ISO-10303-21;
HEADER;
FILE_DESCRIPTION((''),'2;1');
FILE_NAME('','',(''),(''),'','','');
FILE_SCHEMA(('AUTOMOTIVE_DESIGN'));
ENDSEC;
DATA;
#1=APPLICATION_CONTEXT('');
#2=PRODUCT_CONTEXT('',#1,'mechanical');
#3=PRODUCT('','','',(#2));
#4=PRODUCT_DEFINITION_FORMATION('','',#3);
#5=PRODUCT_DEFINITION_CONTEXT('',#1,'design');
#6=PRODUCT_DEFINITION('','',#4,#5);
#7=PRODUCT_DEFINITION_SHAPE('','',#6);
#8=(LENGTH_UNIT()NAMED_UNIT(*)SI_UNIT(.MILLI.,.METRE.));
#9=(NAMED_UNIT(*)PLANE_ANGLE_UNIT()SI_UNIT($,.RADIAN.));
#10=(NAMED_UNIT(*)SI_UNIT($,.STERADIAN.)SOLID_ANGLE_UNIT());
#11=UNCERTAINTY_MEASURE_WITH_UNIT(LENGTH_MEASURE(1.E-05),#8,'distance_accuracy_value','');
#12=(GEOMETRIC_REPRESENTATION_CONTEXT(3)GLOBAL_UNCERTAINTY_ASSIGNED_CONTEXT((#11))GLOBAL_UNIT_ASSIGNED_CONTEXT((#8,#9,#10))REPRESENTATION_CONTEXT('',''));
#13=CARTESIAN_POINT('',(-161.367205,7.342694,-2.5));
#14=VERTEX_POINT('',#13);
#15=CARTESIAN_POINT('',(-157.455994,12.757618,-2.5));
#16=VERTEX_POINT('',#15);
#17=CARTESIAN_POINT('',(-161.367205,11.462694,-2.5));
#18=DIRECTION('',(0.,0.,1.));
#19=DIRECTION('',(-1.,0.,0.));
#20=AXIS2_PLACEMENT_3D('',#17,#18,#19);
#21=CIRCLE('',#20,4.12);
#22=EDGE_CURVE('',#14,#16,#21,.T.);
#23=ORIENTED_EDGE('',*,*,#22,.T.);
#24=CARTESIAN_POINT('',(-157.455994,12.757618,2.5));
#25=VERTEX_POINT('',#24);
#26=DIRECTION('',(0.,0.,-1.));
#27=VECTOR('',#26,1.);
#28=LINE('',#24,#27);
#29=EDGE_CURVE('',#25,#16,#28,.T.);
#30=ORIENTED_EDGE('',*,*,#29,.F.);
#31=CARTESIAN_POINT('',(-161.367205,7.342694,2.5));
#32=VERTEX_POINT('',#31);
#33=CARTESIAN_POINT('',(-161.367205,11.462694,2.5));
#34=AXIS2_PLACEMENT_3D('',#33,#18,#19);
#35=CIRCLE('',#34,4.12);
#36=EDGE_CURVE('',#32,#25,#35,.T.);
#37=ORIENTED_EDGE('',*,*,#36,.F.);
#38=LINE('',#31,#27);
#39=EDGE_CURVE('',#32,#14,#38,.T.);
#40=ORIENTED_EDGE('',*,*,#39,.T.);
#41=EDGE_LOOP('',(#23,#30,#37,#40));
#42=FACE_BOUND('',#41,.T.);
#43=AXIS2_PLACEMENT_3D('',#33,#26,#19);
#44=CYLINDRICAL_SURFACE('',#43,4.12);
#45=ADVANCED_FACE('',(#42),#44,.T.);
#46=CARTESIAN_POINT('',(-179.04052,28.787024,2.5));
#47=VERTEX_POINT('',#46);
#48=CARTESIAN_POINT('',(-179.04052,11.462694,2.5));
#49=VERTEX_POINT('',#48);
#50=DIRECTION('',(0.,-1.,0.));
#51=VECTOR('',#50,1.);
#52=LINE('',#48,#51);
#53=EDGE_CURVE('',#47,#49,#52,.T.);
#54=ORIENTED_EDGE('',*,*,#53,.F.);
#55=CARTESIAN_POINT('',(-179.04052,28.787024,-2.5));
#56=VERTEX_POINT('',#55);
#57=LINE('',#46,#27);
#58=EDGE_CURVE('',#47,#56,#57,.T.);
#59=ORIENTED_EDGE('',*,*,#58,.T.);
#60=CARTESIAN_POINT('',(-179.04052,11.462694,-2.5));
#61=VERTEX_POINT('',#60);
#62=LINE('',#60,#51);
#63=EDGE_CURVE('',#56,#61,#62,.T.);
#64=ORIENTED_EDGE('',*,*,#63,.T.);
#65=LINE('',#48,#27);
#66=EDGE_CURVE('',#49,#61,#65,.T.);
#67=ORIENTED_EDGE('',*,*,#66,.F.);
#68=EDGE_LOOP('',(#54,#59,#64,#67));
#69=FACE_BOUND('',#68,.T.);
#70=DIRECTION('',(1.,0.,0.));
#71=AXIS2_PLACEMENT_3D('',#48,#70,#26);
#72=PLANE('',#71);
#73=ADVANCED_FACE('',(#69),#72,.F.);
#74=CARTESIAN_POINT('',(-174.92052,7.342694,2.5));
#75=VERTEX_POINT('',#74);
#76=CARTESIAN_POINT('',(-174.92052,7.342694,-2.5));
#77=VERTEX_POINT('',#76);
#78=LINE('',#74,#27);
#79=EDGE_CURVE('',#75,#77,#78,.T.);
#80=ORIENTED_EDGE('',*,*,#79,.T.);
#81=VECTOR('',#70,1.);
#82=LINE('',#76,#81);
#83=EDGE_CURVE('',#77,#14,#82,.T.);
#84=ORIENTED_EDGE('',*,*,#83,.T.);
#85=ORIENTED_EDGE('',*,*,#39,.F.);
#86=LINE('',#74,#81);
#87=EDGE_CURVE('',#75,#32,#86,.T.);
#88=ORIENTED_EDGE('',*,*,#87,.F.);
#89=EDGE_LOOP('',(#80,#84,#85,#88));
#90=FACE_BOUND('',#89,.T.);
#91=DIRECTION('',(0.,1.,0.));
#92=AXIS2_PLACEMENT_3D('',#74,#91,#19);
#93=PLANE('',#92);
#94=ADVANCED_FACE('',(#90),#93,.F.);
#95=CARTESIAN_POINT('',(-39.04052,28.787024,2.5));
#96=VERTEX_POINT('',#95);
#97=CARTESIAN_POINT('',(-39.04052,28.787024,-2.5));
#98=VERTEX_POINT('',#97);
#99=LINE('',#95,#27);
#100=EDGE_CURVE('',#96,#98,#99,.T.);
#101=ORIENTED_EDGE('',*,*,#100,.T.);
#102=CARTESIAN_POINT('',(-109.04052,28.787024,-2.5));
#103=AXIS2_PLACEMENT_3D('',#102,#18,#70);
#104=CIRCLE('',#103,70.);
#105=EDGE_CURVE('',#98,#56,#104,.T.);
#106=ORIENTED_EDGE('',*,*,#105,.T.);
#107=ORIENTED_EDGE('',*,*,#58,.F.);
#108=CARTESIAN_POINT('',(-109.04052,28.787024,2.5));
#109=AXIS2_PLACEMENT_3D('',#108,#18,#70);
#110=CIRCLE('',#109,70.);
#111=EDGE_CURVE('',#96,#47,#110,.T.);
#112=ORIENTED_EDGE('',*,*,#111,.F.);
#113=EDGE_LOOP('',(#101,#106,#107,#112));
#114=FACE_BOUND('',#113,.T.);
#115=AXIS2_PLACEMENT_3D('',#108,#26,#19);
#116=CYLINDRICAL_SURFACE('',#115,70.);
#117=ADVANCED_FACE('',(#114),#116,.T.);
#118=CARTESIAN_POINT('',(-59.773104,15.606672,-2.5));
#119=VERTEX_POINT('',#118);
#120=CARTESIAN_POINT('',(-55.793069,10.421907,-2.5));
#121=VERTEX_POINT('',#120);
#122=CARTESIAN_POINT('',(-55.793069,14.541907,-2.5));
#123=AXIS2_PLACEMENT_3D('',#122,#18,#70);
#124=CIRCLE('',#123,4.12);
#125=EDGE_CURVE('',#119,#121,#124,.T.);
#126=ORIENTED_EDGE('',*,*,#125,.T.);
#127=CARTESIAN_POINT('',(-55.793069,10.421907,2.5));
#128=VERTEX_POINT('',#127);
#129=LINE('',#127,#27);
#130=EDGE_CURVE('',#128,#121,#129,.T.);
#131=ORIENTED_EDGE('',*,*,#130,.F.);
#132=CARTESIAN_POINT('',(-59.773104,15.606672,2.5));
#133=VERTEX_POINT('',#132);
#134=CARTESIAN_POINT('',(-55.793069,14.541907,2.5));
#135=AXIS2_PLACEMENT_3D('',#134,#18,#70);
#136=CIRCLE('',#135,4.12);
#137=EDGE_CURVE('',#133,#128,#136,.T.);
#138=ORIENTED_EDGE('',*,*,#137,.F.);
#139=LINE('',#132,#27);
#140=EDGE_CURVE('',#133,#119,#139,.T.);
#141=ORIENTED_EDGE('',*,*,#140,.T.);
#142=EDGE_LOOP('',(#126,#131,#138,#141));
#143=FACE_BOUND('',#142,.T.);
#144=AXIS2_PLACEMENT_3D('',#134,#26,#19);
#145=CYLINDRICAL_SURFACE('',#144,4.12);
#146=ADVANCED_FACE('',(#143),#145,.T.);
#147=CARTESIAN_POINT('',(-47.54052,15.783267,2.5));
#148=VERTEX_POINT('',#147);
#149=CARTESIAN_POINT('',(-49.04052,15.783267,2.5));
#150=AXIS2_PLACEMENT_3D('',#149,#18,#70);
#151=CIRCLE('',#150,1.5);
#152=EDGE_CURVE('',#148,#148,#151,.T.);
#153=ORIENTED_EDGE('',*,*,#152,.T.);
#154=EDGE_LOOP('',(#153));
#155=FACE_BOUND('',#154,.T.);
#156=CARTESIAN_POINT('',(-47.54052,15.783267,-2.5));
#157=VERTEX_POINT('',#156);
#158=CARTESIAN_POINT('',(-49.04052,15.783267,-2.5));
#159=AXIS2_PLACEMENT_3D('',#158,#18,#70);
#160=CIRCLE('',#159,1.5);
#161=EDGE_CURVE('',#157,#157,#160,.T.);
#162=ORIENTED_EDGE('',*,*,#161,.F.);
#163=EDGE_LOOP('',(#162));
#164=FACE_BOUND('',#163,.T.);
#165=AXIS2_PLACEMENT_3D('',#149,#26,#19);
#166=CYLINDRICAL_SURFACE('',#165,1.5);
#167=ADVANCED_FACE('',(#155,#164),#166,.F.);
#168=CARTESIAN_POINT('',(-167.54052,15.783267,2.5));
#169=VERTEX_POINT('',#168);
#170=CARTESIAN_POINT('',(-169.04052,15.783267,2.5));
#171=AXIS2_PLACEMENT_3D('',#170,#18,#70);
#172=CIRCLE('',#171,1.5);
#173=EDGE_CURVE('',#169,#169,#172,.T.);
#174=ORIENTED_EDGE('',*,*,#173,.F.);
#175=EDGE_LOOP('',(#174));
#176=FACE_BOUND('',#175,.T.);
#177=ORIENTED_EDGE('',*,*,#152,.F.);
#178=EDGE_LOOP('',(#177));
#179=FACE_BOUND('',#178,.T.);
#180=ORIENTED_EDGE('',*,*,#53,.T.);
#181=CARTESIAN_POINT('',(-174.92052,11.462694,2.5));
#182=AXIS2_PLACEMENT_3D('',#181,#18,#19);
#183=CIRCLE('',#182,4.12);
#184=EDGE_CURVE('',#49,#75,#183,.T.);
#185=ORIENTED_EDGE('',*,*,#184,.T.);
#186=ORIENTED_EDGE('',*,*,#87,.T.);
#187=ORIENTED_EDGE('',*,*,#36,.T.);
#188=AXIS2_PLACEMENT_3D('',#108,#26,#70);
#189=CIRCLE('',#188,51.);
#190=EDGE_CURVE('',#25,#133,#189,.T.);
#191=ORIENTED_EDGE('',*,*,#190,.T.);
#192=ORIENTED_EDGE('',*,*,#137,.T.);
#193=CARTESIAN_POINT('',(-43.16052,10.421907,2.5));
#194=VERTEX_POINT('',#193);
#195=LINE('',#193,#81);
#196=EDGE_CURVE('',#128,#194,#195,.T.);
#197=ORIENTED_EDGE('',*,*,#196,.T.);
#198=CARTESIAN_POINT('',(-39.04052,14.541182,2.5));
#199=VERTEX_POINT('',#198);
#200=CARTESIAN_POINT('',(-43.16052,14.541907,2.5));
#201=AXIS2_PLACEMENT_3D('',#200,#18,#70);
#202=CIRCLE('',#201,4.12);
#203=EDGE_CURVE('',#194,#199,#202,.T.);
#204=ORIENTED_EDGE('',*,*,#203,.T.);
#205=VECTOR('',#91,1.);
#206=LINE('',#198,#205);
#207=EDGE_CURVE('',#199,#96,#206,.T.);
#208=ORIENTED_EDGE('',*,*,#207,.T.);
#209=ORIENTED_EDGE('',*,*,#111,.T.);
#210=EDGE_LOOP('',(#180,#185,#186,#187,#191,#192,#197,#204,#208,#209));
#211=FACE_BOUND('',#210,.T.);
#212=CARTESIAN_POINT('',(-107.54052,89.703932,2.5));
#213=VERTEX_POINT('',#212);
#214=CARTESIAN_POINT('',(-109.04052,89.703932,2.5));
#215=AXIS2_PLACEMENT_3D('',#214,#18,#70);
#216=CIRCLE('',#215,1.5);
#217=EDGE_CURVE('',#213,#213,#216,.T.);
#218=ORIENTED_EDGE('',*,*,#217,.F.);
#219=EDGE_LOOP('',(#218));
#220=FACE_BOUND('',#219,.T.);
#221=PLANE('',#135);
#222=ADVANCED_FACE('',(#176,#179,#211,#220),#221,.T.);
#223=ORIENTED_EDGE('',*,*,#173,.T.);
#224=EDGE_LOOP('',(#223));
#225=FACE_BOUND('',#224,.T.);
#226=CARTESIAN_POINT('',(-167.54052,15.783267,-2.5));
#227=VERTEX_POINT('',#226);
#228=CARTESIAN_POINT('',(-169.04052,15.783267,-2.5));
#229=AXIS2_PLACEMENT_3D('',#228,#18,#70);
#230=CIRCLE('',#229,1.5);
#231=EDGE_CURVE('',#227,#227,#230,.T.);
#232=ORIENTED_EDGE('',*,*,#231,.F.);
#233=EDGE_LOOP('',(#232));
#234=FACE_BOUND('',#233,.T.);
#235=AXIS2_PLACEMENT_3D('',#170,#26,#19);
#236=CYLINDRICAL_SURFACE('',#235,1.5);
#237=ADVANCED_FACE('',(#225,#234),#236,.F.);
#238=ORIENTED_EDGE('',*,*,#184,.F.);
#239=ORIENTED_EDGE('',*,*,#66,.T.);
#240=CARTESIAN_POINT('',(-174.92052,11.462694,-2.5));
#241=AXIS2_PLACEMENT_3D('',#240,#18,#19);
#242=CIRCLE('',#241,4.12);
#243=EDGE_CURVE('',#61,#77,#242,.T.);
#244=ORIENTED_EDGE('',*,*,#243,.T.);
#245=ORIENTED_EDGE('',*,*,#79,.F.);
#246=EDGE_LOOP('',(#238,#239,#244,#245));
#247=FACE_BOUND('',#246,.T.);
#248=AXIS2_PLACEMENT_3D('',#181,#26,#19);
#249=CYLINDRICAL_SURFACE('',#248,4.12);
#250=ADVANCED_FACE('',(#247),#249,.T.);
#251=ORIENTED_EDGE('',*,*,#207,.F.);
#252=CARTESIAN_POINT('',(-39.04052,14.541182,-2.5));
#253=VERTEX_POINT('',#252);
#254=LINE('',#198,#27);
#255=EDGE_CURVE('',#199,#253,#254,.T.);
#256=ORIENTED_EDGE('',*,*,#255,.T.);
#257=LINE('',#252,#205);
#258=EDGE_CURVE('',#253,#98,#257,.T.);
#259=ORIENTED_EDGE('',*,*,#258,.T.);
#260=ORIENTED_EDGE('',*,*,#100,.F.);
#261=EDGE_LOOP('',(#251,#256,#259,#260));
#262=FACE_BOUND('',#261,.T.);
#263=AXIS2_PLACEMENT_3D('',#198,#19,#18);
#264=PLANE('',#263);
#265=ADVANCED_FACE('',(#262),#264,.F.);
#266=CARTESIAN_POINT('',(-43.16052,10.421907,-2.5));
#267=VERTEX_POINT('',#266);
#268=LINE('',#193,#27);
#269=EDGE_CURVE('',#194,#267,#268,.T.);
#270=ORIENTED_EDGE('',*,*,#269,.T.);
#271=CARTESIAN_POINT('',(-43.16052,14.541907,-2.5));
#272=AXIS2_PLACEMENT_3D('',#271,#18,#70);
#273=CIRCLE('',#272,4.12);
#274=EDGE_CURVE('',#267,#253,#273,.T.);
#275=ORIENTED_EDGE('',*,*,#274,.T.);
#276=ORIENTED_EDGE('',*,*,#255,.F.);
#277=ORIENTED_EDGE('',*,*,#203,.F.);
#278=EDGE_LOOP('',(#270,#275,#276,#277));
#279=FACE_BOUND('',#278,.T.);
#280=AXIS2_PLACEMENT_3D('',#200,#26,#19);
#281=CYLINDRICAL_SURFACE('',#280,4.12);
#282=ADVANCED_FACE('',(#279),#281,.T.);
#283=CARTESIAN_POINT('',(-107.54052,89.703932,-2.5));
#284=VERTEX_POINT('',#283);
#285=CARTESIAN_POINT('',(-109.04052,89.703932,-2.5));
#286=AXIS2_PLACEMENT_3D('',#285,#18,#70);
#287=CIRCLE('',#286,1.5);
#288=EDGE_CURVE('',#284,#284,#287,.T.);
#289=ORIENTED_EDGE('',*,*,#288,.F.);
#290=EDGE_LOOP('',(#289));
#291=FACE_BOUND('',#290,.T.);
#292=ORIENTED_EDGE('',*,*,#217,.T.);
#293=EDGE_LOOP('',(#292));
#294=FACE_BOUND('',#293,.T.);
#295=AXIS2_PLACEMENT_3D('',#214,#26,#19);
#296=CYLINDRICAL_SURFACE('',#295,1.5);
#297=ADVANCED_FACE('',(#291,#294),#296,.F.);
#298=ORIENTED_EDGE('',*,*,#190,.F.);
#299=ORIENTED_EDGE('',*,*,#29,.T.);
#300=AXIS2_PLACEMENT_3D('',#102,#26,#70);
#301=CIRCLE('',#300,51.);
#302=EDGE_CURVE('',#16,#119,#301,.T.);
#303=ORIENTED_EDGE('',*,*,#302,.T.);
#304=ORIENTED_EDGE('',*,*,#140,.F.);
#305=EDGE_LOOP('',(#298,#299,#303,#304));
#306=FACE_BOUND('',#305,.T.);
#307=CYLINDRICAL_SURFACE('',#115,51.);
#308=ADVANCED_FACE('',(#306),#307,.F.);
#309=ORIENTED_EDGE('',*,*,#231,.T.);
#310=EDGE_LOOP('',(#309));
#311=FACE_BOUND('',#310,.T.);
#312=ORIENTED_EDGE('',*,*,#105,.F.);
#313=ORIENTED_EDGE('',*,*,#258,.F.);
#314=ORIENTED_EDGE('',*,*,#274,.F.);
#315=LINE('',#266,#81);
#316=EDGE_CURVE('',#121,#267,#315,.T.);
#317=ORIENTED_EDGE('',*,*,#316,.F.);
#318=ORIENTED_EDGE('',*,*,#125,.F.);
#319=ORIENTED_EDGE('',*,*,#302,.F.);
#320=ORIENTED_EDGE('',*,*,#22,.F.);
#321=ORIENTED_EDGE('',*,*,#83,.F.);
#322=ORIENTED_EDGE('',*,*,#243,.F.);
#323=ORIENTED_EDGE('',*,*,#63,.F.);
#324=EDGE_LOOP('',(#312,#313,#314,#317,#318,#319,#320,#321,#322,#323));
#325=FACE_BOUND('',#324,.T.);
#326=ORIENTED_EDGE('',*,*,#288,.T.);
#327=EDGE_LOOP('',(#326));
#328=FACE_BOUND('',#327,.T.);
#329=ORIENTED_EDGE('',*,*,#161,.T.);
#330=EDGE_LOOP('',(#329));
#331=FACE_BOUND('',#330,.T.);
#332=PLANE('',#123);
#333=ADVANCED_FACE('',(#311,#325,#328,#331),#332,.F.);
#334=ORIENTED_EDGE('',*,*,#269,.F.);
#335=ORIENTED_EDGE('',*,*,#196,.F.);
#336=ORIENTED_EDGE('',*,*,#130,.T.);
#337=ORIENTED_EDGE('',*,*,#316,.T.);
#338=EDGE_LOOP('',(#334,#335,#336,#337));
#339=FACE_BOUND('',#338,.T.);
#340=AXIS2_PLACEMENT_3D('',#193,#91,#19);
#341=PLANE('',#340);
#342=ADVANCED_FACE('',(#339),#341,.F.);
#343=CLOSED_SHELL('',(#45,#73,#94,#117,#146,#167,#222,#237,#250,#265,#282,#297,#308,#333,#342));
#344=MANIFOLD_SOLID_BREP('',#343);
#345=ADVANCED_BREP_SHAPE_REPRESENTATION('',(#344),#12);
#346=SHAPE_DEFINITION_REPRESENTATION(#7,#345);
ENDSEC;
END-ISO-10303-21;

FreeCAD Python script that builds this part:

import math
import FreeCAD as App
import Part
import Sketcher

V = App.Vector

doc = App.newDocument("Part")
body = doc.addObject("PartDesign::Body", "Body")

# Sketch on XY plane
sketch1 = body.newObject("Sketcher::SketchObject", "Sketch")
sketch1.AttachmentSupport = (doc.getObject("XY_Plane"), [""])
sketch1.MapMode = "FlatFace"
sketch1.addGeometry([
    Part.LineSegment(V(-55.793069, 10.421907, 0), V(-43.16052, 10.421907, 0)),  # 0
    Part.ArcOfCircle(Part.Circle(V(-43.16052, 14.541907, 0), V(0, 0, 1), 4.12), math.radians(-90), math.radians(-0.010076)),  # 1
    Part.LineSegment(V(-39.04052, 14.541182, 0), V(-39.04052, 28.787024, 0)),  # 2
    Part.ArcOfCircle(Part.Circle(V(-109.04052, 28.787024, 0), V(0, 0, 1), 70), math.radians(0), math.radians(180)),  # 3
    Part.LineSegment(V(-179.04052, 28.787024, 0), V(-179.04052, 11.462694, 0)),  # 4
    Part.ArcOfCircle(Part.Circle(V(-174.92052, 11.462694, 0), V(0, 0, 1), 4.12), math.radians(-180), math.radians(-90)),  # 5
    Part.LineSegment(V(-174.92052, 7.342694, 0), V(-161.367205, 7.342694, 0)),  # 6
    Part.ArcOfCircle(Part.Circle(V(-161.367205, 11.462694, 0), V(0, 0, 1), 4.12), math.radians(-90), math.radians(18.318686)),  # 7
    Part.ArcOfCircle(Part.Circle(V(-109.04052, 28.787024, 0), V(0, 0, 1), 51), math.radians(-14.977415), math.radians(198.318686)),  # 8
    Part.ArcOfCircle(Part.Circle(V(-55.793069, 14.541907, 0), V(0, 0, 1), 4.12), math.radians(165.022585), math.radians(270)),  # 9
    Part.Circle(V(-49.04052, 15.783267, 0), V(0, 0, 1), 1.5),  # 10
    Part.Circle(V(-169.04052, 15.783267, 0), V(0, 0, 1), 1.5),  # 11
    Part.Circle(V(-109.04052, 89.703932, 0), V(0, 0, 1), 1.5),  # 12
], False)
sketch1.addConstraint([
    Sketcher.Constraint("Tangent", 0, 2, 1, 1),
    Sketcher.Constraint("Coincident", 1, 2, 2, 1),
    Sketcher.Constraint("Tangent", 2, 2, 3, 1),
    Sketcher.Constraint("Tangent", 3, 2, 4, 1),
    Sketcher.Constraint("Tangent", 4, 2, 5, 1),
    Sketcher.Constraint("Tangent", 5, 2, 6, 1),
    Sketcher.Constraint("Tangent", 6, 2, 7, 1),
    Sketcher.Constraint("Tangent", 7, 2, 8, 2),
    Sketcher.Constraint("Tangent", 8, 1, 9, 1),
    Sketcher.Constraint("Tangent", 9, 2, 0, 1),
    Sketcher.Constraint("Horizontal", 0),
    Sketcher.Constraint("Vertical", 2),
    Sketcher.Constraint("Vertical", 4),
    Sketcher.Constraint("Horizontal", 6),
    Sketcher.Constraint("Coincident", 8, 3, 3, 3),
    Sketcher.Constraint("Equal", 1, 5),
    Sketcher.Constraint("Equal", 5, 7),
    Sketcher.Constraint("Equal", 7, 9),
    Sketcher.Constraint("Equal", 10, 11),
    Sketcher.Constraint("Equal", 11, 12),
    Sketcher.Constraint("Horizontal", 10, 3, 11, 3),
    Sketcher.Constraint("Vertical", 8, 3, 12, 3),
    Sketcher.Constraint("Diameter", 10, 3.0),
    Sketcher.Constraint("Radius", 3, 70.0),
    Sketcher.Constraint("Radius", 8, 51.0),
    Sketcher.Constraint("Radius", 1, 4.12),
    Sketcher.Constraint("DistanceX", 3, 3, 10, 3, 60.0),
    Sketcher.Constraint("DistanceX", 11, 3, 3, 3, 60.0),
    Sketcher.Constraint("DistanceX", 0, 1, 0, 2, 12.632549),
    Sketcher.Constraint("DistanceY", 4, 2, 4, 1, 17.324331),
    Sketcher.Constraint("DistanceY", 2, 1, 2, 2, 14.245842),
    Sketcher.Constraint("DistanceX", 1, 3, -1, 1, 43.16052),
    Sketcher.Constraint("DistanceY", -1, 1, 12, 3, 89.703932),
    Sketcher.Constraint("DistanceY", -1, 1, 7, 2, 12.757618),
    Sketcher.Constraint("DistanceY", 1, 3, 10, 3, 1.24136),
])
pad1 = body.newObject("PartDesign::Pad", "Pad")
pad1.Profile = sketch1
pad1.Length = 5
pad1.Midplane = True

doc.recompute()
